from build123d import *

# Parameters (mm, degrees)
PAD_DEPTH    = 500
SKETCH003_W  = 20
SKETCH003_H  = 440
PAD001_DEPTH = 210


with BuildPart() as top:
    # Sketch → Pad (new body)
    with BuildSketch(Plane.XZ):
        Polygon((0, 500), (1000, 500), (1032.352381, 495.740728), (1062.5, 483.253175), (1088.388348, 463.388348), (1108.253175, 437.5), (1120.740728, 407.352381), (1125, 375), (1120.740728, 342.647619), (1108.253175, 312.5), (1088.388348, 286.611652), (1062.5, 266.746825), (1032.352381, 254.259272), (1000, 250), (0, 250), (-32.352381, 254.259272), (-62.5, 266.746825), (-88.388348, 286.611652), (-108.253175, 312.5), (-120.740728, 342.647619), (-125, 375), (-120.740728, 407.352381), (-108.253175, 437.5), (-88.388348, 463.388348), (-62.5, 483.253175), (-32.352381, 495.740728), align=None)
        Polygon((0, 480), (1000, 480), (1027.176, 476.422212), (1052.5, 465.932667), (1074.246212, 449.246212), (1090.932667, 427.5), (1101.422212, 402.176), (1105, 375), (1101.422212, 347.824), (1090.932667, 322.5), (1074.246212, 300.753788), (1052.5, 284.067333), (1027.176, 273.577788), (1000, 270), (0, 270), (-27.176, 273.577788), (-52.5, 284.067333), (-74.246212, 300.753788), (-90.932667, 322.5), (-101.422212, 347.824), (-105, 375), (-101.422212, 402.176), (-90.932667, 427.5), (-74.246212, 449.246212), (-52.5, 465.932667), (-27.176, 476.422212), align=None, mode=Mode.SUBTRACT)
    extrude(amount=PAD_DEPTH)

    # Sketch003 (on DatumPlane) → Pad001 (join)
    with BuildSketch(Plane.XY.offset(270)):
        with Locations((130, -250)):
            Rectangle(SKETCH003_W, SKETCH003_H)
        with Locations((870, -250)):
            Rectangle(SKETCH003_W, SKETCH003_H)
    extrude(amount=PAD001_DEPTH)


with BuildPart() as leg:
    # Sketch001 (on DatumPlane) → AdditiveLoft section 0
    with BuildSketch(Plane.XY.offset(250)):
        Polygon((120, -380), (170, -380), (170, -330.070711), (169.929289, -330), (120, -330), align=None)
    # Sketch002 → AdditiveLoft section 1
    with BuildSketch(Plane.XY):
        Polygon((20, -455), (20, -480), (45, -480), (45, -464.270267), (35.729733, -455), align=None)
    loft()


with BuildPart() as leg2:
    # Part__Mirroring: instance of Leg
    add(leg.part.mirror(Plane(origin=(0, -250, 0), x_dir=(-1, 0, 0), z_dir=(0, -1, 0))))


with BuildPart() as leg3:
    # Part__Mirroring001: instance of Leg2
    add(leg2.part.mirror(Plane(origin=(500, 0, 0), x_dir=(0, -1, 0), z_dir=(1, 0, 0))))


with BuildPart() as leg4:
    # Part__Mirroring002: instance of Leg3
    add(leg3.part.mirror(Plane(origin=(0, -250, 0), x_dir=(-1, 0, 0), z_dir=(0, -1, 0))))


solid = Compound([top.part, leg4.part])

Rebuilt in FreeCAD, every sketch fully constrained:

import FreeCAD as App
import Part
import Sketcher
from FreeCAD import Vector
Q = App.Units.Quantity

doc = App.newDocument("Part")
body = doc.addObject("PartDesign::Body", "Body")

# Sketch on XZ plane
sketch1 = doc.addObject("Sketcher::SketchObject", "Sketch")
body.addObject(sketch1)
sketch1.AttachmentSupport = (doc.XZ_Plane, [""])
sketch1.MapMode = "FlatFace"
sketch1.addGeometry(Part.LineSegment(Vector(1000, 500, 0), Vector(0, 500, 0)), False)
sketch1.addGeometry(Part.LineSegment(Vector(0, 500, 0), Vector(-32, 496, 0)), False)
sketch1.addGeometry(Part.LineSegment(Vector(-32, 496, 0), Vector(-62, 483, 0)), False)
sketch1.addGeometry(Part.LineSegment(Vector(-62, 483, 0), Vector(-88, 463, 0)), False)
sketch1.addGeometry(Part.LineSegment(Vector(-88, 463, 0), Vector(-108, 438, 0)), False)
sketch1.addGeometry(Part.LineSegment(Vector(-108, 438, 0), Vector(-121, 407, 0)), False)
sketch1.addGeometry(Part.LineSegment(Vector(-121, 407, 0), Vector(-125, 375, 0)), False)
sketch1.addGeometry(Part.LineSegment(Vector(-125, 375, 0), Vector(-121, 343, 0)), False)
sketch1.addGeometry(Part.LineSegment(Vector(-121, 343, 0), Vector(-108, 312, 0)), False)
sketch1.addGeometry(Part.LineSegment(Vector(-108, 312, 0), Vector(-88, 287, 0)), False)
sketch1.addGeometry(Part.LineSegment(Vector(-88, 287, 0), Vector(-62, 267, 0)), False)
sketch1.addGeometry(Part.LineSegment(Vector(-62, 267, 0), Vector(-32, 254, 0)), False)
sketch1.addGeometry(Part.LineSegment(Vector(-32, 254, 0), Vector(0, 250, 0)), False)
sketch1.addGeometry(Part.LineSegment(Vector(0, 250, 0), Vector(1000, 250, 0)), False)
sketch1.addGeometry(Part.LineSegment(Vector(1000, 250, 0), Vector(1032, 254, 0)), False)
sketch1.addGeometry(Part.LineSegment(Vector(1032, 254, 0), Vector(1062, 267, 0)), False)
sketch1.addGeometry(Part.LineSegment(Vector(1062, 267, 0), Vector(1088, 287, 0)), False)
sketch1.addGeometry(Part.LineSegment(Vector(1088, 287, 0), Vector(1108, 312, 0)), False)
sketch1.addGeometry(Part.LineSegment(Vector(1108, 312, 0), Vector(1121, 343, 0)), False)
sketch1.addGeometry(Part.LineSegment(Vector(1121, 343, 0), Vector(1125, 375, 0)), False)
sketch1.addGeometry(Part.LineSegment(Vector(1125, 375, 0), Vector(1121, 407, 0)), False)
sketch1.addGeometry(Part.LineSegment(Vector(1121, 407, 0), Vector(1108, 438, 0)), False)
sketch1.addGeometry(Part.LineSegment(Vector(1108, 438, 0), Vector(1088, 463, 0)), False)
sketch1.addGeometry(Part.LineSegment(Vector(1088, 463, 0), Vector(1062, 483, 0)), False)
sketch1.addGeometry(Part.LineSegment(Vector(1062, 483, 0), Vector(1032, 496, 0)), False)
sketch1.addGeometry(Part.LineSegment(Vector(1032, 496, 0), Vector(1000, 500, 0)), False)
sketch1.addGeometry(Part.LineSegment(Vector(0, 480, 0), Vector(1000, 480, 0)), False)
sketch1.addGeometry(Part.LineSegment(Vector(1000, 480, 0), Vector(1027, 476, 0)), False)
sketch1.addGeometry(Part.LineSegment(Vector(1027, 476, 0), Vector(1052, 466, 0)), False)
sketch1.addGeometry(Part.LineSegment(Vector(1052, 466, 0), Vector(1074, 449, 0)), False)
sketch1.addGeometry(Part.LineSegment(Vector(1074, 449, 0), Vector(1091, 428, 0)), False)
sketch1.addGeometry(Part.LineSegment(Vector(1091, 428, 0), Vector(1101, 402, 0)), False)
sketch1.addGeometry(Part.LineSegment(Vector(1101, 402, 0), Vector(1105, 375, 0)), False)
sketch1.addGeometry(Part.LineSegment(Vector(1105, 375, 0), Vector(1101, 348, 0)), False)
sketch1.addGeometry(Part.LineSegment(Vector(1101, 348, 0), Vector(1091, 322, 0)), False)
sketch1.addGeometry(Part.LineSegment(Vector(1091, 322, 0), Vector(1074, 301, 0)), False)
sketch1.addGeometry(Part.LineSegment(Vector(1074, 301, 0), Vector(1052, 284, 0)), False)
sketch1.addGeometry(Part.LineSegment(Vector(1052, 284, 0), Vector(1027, 274, 0)), False)
sketch1.addGeometry(Part.LineSegment(Vector(1027, 274, 0), Vector(1000, 270, 0)), False)
sketch1.addGeometry(Part.LineSegment(Vector(1000, 270, 0), Vector(0, 270, 0)), False)
sketch1.addGeometry(Part.LineSegment(Vector(0, 270, 0), Vector(-27, 274, 0)), False)
sketch1.addGeometry(Part.LineSegment(Vector(-27, 274, 0), Vector(-52, 284, 0)), False)
sketch1.addGeometry(Part.LineSegment(Vector(-52, 284, 0), Vector(-74, 301, 0)), False)
sketch1.addGeometry(Part.LineSegment(Vector(-74, 301, 0), Vector(-91, 322, 0)), False)
sketch1.addGeometry(Part.LineSegment(Vector(-91, 322, 0), Vector(-101, 348, 0)), False)
sketch1.addGeometry(Part.LineSegment(Vector(-101, 348, 0), Vector(-105, 375, 0)), False)
sketch1.addGeometry(Part.LineSegment(Vector(-105, 375, 0), Vector(-101, 402, 0)), False)
sketch1.addGeometry(Part.LineSegment(Vector(-101, 402, 0), Vector(-91, 428, 0)), False)
sketch1.addGeometry(Part.LineSegment(Vector(-91, 428, 0), Vector(-74, 449, 0)), False)
sketch1.addGeometry(Part.LineSegment(Vector(-74, 449, 0), Vector(-52, 466, 0)), False)
sketch1.addGeometry(Part.LineSegment(Vector(-52, 466, 0), Vector(-27, 476, 0)), False)
sketch1.addGeometry(Part.LineSegment(Vector(-27, 476, 0), Vector(0, 480, 0)), False)
sketch1.addConstraint(Sketcher.Constraint("Coincident", 0, 2, 1, 1))
sketch1.addConstraint(Sketcher.Constraint("Coincident", 1, 2, 2, 1))
sketch1.addConstraint(Sketcher.Constraint("Coincident", 2, 2, 3, 1))
sketch1.addConstraint(Sketcher.Constraint("Coincident", 3, 2, 4, 1))
sketch1.addConstraint(Sketcher.Constraint("Coincident", 4, 2, 5, 1))
sketch1.addConstraint(Sketcher.Constraint("Coincident", 5, 2, 6, 1))
sketch1.addConstraint(Sketcher.Constraint("Coincident", 6, 2, 7, 1))
sketch1.addConstraint(Sketcher.Constraint("Coincident", 7, 2, 8, 1))
sketch1.addConstraint(Sketcher.Constraint("Coincident", 8, 2, 9, 1))
sketch1.addConstraint(Sketcher.Constraint("Coincident", 9, 2, 10, 1))
sketch1.addConstraint(Sketcher.Constraint("Coincident", 10, 2, 11, 1))
sketch1.addConstraint(Sketcher.Constraint("Coincident", 11, 2, 12, 1))
sketch1.addConstraint(Sketcher.Constraint("Coincident", 12, 2, 13, 1))
sketch1.addConstraint(Sketcher.Constraint("Coincident", 13, 2, 14, 1))
sketch1.addConstraint(Sketcher.Constraint("Coincident", 14, 2, 15, 1))
sketch1.addConstraint(Sketcher.Constraint("Coincident", 15, 2, 16, 1))
sketch1.addConstraint(Sketcher.Constraint("Coincident", 16, 2, 17, 1))
sketch1.addConstraint(Sketcher.Constraint("Coincident", 17, 2, 18, 1))
sketch1.addConstraint(Sketcher.Constraint("Coincident", 18, 2, 19, 1))
sketch1.addConstraint(Sketcher.Constraint("Coincident", 19, 2, 20, 1))
sketch1.addConstraint(Sketcher.Constraint("Coincident", 20, 2, 21, 1))
sketch1.addConstraint(Sketcher.Constraint("Coincident", 21, 2, 22, 1))
sketch1.addConstraint(Sketcher.Constraint("Coincident", 22, 2, 23, 1))
sketch1.addConstraint(Sketcher.Constraint("Coincident", 23, 2, 24, 1))
sketch1.addConstraint(Sketcher.Constraint("Coincident", 24, 2, 25, 1))
sketch1.addConstraint(Sketcher.Constraint("Coincident", 25, 2, 0, 1))
sketch1.addConstraint(Sketcher.Constraint("Coincident", 26, 2, 27, 1))
sketch1.addConstraint(Sketcher.Constraint("Coincident", 27, 2, 28, 1))
sketch1.addConstraint(Sketcher.Constraint("Coincident", 28, 2, 29, 1))
sketch1.addConstraint(Sketcher.Constraint("Coincident", 29, 2, 30, 1))
sketch1.addConstraint(Sketcher.Constraint("Coincident", 30, 2, 31, 1))
sketch1.addConstraint(Sketcher.Constraint("Coincident", 31, 2, 32, 1))
sketch1.addConstraint(Sketcher.Constraint("Coincident", 32, 2, 33, 1))
sketch1.addConstraint(Sketcher.Constraint("Coincident", 33, 2, 34, 1))
sketch1.addConstraint(Sketcher.Constraint("Coincident", 34, 2, 35, 1))
sketch1.addConstraint(Sketcher.Constraint("Coincident", 35, 2, 36, 1))
sketch1.addConstraint(Sketcher.Constraint("Coincident", 36, 2, 37, 1))
sketch1.addConstraint(Sketcher.Constraint("Coincident", 37, 2, 38, 1))
sketch1.addConstraint(Sketcher.Constraint("Coincident", 38, 2, 39, 1))
sketch1.addConstraint(Sketcher.Constraint("Coincident", 39, 2, 40, 1))
sketch1.addConstraint(Sketcher.Constraint("Coincident", 40, 2, 41, 1))
sketch1.addConstraint(Sketcher.Constraint("Coincident", 41, 2, 42, 1))
sketch1.addConstraint(Sketcher.Constraint("Coincident", 42, 2, 43, 1))
sketch1.addConstraint(Sketcher.Constraint("Coincident", 43, 2, 44, 1))
sketch1.addConstraint(Sketcher.Constraint("Coincident", 44, 2, 45, 1))
sketch1.addConstraint(Sketcher.Constraint("Coincident", 45, 2, 46, 1))
sketch1.addConstraint(Sketcher.Constraint("Coincident", 46, 2, 47, 1))
sketch1.addConstraint(Sketcher.Constraint("Coincident", 47, 2, 48, 1))
sketch1.addConstraint(Sketcher.Constraint("Coincident", 48, 2, 49, 1))
sketch1.addConstraint(Sketcher.Constraint("Coincident", 49, 2, 50, 1))
sketch1.addConstraint(Sketcher.Constraint("Coincident", 50, 2, 51, 1))
sketch1.addConstraint(Sketcher.Constraint("Coincident", 51, 2, 26, 1))
sketch1.addConstraint(Sketcher.Constraint("Horizontal", 0))
sketch1.addConstraint(Sketcher.Constraint("Horizontal", 13))
sketch1.addConstraint(Sketcher.Constraint("Horizontal", 26))
sketch1.addConstraint(Sketcher.Constraint("Horizontal", 39))
sketch1.addConstraint(Sketcher.Constraint("PointOnObject", 0, 2, -2))
sketch1.addConstraint(Sketcher.Constraint("PointOnObject", 12, 2, -2))
sketch1.addConstraint(Sketcher.Constraint("PointOnObject", 39, 2, -2))
sketch1.addConstraint(Sketcher.Constraint("PointOnObject", 51, 2, -2))
sketch1.addConstraint(Sketcher.Constraint("Perpendicular", 1, 7))
sketch1.addConstraint(Sketcher.Constraint("Perpendicular", 2, 8))
sketch1.addConstraint(Sketcher.Constraint("Perpendicular", 3, 9))
sketch1.addConstraint(Sketcher.Constraint("Perpendicular", 4, 10))
sketch1.addConstraint(Sketcher.Constraint("Perpendicular", 5, 11))
sketch1.addConstraint(Sketcher.Constraint("Perpendicular", 6, 12))
sketch1.addConstraint(Sketcher.Constraint("Perpendicular", 7, 14))
sketch1.addConstraint(Sketcher.Constraint("Perpendicular", 8, 15))
sketch1.addConstraint(Sketcher.Constraint("Perpendicular", 9, 16))
sketch1.addConstraint(Sketcher.Constraint("Perpendicular", 10, 17))
sketch1.addConstraint(Sketcher.Constraint("Perpendicular", 11, 18))
sketch1.addConstraint(Sketcher.Constraint("Perpendicular", 12, 19))
sketch1.addConstraint(Sketcher.Constraint("Perpendicular", 14, 20))
sketch1.addConstraint(Sketcher.Constraint("Perpendicular", 15, 21))
sketch1.addConstraint(Sketcher.Constraint("Perpendicular", 16, 22))
sketch1.addConstraint(Sketcher.Constraint("Perpendicular", 17, 23))
sketch1.addConstraint(Sketcher.Constraint("Perpendicular", 18, 24))
sketch1.addConstraint(Sketcher.Constraint("Perpendicular", 19, 25))
sketch1.addConstraint(Sketcher.Constraint("Parallel", 25, 27))
sketch1.addConstraint(Sketcher.Constraint("Parallel", 24, 28))
sketch1.addConstraint(Sketcher.Constraint("Parallel", 23, 29))
sketch1.addConstraint(Sketcher.Constraint("Parallel", 22, 30))
sketch1.addConstraint(Sketcher.Constraint("Parallel", 21, 31))
sketch1.addConstraint(Sketcher.Constraint("Parallel", 20, 32))
sketch1.addConstraint(Sketcher.Constraint("Perpendicular", 27, 33))
sketch1.addConstraint(Sketcher.Constraint("Perpendicular", 28, 34))
sketch1.addConstraint(Sketcher.Constraint("Perpendicular", 29, 35))
sketch1.addConstraint(Sketcher.Constraint("Perpendicular", 30, 36))
sketch1.addConstraint(Sketcher.Constraint("Perpendicular", 31, 37))
sketch1.addConstraint(Sketcher.Constraint("Perpendicular", 32, 38))
sketch1.addConstraint(Sketcher.Constraint("Perpendicular", 33, 40))
sketch1.addConstraint(Sketcher.Constraint("Perpendicular", 34, 41))
sketch1.addConstraint(Sketcher.Constraint("Perpendicular", 35, 42))
sketch1.addConstraint(Sketcher.Constraint("Perpendicular", 36, 43))
sketch1.addConstraint(Sketcher.Constraint("Perpendicular", 37, 44))
sketch1.addConstraint(Sketcher.Constraint("Perpendicular", 38, 45))
sketch1.addConstraint(Sketcher.Constraint("Perpendicular", 40, 46))
sketch1.addConstraint(Sketcher.Constraint("Perpendicular", 41, 47))
sketch1.addConstraint(Sketcher.Constraint("Perpendicular", 42, 48))
sketch1.addConstraint(Sketcher.Constraint("Perpendicular", 43, 49))
sketch1.addConstraint(Sketcher.Constraint("Perpendicular", 44, 50))
sketch1.addConstraint(Sketcher.Constraint("Perpendicular", 45, 51))
sketch1.addConstraint(Sketcher.Constraint("Horizontal", 11, 2, 14, 2))
sketch1.addConstraint(Sketcher.Constraint("Horizontal", 10, 2, 15, 2))
sketch1.addConstraint(Sketcher.Constraint("Horizontal", 9, 2, 16, 2))
sketch1.addConstraint(Sketcher.Constraint("Horizontal", 8, 2, 17, 2))
sketch1.addConstraint(Sketcher.Constraint("Horizontal", 7, 2, 18, 2))
sketch1.addConstraint(Sketcher.Constraint("Horizontal", 6, 2, 19, 2))
sketch1.addConstraint(Sketcher.Constraint("Horizontal", 5, 2, 20, 2))
sketch1.addConstraint(Sketcher.Constraint("Horizontal", 4, 2, 21, 2))
sketch1.addConstraint(Sketcher.Constraint("Horizontal", 3, 2, 22, 2))
sketch1.addConstraint(Sketcher.Constraint("Horizontal", 2, 2, 23, 2))
sketch1.addConstraint(Sketcher.Constraint("Horizontal", 1, 2, 24, 2))
sketch1.addConstraint(Sketcher.Constraint("Horizontal", 19, 2, 32, 2))
sketch1.addConstraint(Sketcher.Constraint("Horizontal", 37, 2, 40, 2))
sketch1.addConstraint(Sketcher.Constraint("Horizontal", 36, 2, 41, 2))
sketch1.addConstraint(Sketcher.Constraint("Horizontal", 35, 2, 42, 2))
sketch1.addConstraint(Sketcher.Constraint("Horizontal", 34, 2, 43, 2))
sketch1.addConstraint(Sketcher.Constraint("Horizontal", 33, 2, 44, 2))
sketch1.addConstraint(Sketcher.Constraint("Horizontal", 32, 2, 45, 2))
sketch1.addConstraint(Sketcher.Constraint("Horizontal", 31, 2, 46, 2))
sketch1.addConstraint(Sketcher.Constraint("Horizontal", 30, 2, 47, 2))
sketch1.addConstraint(Sketcher.Constraint("Horizontal", 29, 2, 48, 2))
sketch1.addConstraint(Sketcher.Constraint("Horizontal", 28, 2, 49, 2))
sketch1.addConstraint(Sketcher.Constraint("Horizontal", 27, 2, 50, 2))
sketch1.addConstraint(Sketcher.Constraint("Vertical", 5, 2, 7, 2))
sketch1.addConstraint(Sketcher.Constraint("Vertical", 4, 2, 8, 2))
sketch1.addConstraint(Sketcher.Constraint("Vertical", 3, 2, 9, 2))
sketch1.addConstraint(Sketcher.Constraint("Vertical", 2, 2, 10, 2))
sketch1.addConstraint(Sketcher.Constraint("Vertical", 1, 2, 11, 2))
sketch1.addConstraint(Sketcher.Constraint("Vertical", 18, 2, 20, 2))
sketch1.addConstraint(Sketcher.Constraint("Vertical", 17, 2, 21, 2))
sketch1.addConstraint(Sketcher.Constraint("Vertical", 16, 2, 22, 2))
sketch1.addConstraint(Sketcher.Constraint("Vertical", 25, 2, 26, 2))
sketch1.addConstraint(Sketcher.Constraint("Vertical", 31, 2, 33, 2))
sketch1.addConstraint(Sketcher.Constraint("Vertical", 30, 2, 34, 2))
sketch1.addConstraint(Sketcher.Constraint("Vertical", 29, 2, 35, 2))
sketch1.addConstraint(Sketcher.Constraint("Vertical", 28, 2, 36, 2))
sketch1.addConstraint(Sketcher.Constraint("Vertical", 27, 2, 37, 2))
sketch1.addConstraint(Sketcher.Constraint("Equal", 1, 2))
sketch1.addConstraint(Sketcher.Constraint("Equal", 2, 3))
sketch1.addConstraint(Sketcher.Constraint("Equal", 3, 4))
sketch1.addConstraint(Sketcher.Constraint("Equal", 4, 5))
sketch1.addConstraint(Sketcher.Constraint("Equal", 5, 6))
sketch1.addConstraint(Sketcher.Constraint("Equal", 27, 28))
sketch1.addConstraint(Sketcher.Constraint("Equal", 28, 29))
sketch1.addConstraint(Sketcher.Constraint("Equal", 29, 30))
sketch1.addConstraint(Sketcher.Constraint("Equal", 30, 31))
sketch1.addConstraint(Sketcher.Constraint("Equal", 31, 32))
sketch1.addConstraint(Sketcher.Constraint("DistanceX", 0, 2, 0, 1, 1000.0))
sketch1.addConstraint(Sketcher.Constraint("DistanceY", -1, 1, 0, 2, 500.0))
sketch1.addConstraint(Sketcher.Constraint("DistanceX", 6, 2, -1, 1, 125.0))
sketch1.addConstraint(Sketcher.Constraint("DistanceY", -1, 1, 26, 2, 480.0))
sketch1.addConstraint(Sketcher.Constraint("Angle", 1, Q("-172.5 deg")))
sketch1.addConstraint(Sketcher.Constraint("Angle", 2, Q("-157.499999 deg")))
sketch1.addConstraint(Sketcher.Constraint("Angle", 3, Q("-142.500002 deg")))
pad1 = doc.addObject("PartDesign::Pad", "Pad")
body.addObject(pad1)
pad1.Profile = sketch1
pad1.Length = 500

# Sketch on XY plane
sketch2 = doc.addObject("Sketcher::SketchObject", "Sketch001")
body.addObject(sketch2)
sketch2.AttachmentSupport = (doc.XY_Plane, [""])
sketch2.MapMode = "FlatFace"
sketch2.AttachmentOffset = App.Placement(Vector(0, 0, 270), App.Rotation())
sketch2.addGeometry(Part.LineSegment(Vector(120, -30, 0), Vector(120, -470, 0)), False)
sketch2.addGeometry(Part.LineSegment(Vector(120, -470, 0), Vector(140, -470, 0)), False)
sketch2.addGeometry(Part.LineSegment(Vector(140, -470, 0), Vector(140, -30, 0)), False)
sketch2.addGeometry(Part.LineSegment(Vector(140, -30, 0), Vector(120, -30, 0)), False)
sketch2.addGeometry(Part.LineSegment(Vector(860, -30, 0), Vector(860, -470, 0)), False)
sketch2.addGeometry(Part.LineSegment(Vector(860, -470, 0), Vector(880, -470, 0)), False)
sketch2.addGeometry(Part.LineSegment(Vector(880, -470, 0), Vector(880, -30, 0)), False)
sketch2.addGeometry(Part.LineSegment(Vector(880, -30, 0), Vector(860, -30, 0)), False)
sketch2.addConstraint(Sketcher.Constraint("Coincident", 0, 2, 1, 1))
sketch2.addConstraint(Sketcher.Constraint("Coincident", 1, 2, 2, 1))
sketch2.addConstraint(Sketcher.Constraint("Coincident", 2, 2, 3, 1))
sketch2.addConstraint(Sketcher.Constraint("Coincident", 3, 2, 0, 1))
sketch2.addConstraint(Sketcher.Constraint("Coincident", 4, 2, 5, 1))
sketch2.addConstraint(Sketcher.Constraint("Coincident", 5, 2, 6, 1))
sketch2.addConstraint(Sketcher.Constraint("Coincident", 6, 2, 7, 1))
sketch2.addConstraint(Sketcher.Constraint("Coincident", 7, 2, 4, 1))
sketch2.addConstraint(Sketcher.Constraint("Vertical", 0))
sketch2.addConstraint(Sketcher.Constraint("Horizontal", 1))
sketch2.addConstraint(Sketcher.Constraint("Vertical", 2))
sketch2.addConstraint(Sketcher.Constraint("Horizontal", 3))
sketch2.addConstraint(Sketcher.Constraint("Vertical", 4))
sketch2.addConstraint(Sketcher.Constraint("Horizontal", 5))
sketch2.addConstraint(Sketcher.Constraint("Vertical", 6))
sketch2.addConstraint(Sketcher.Constraint("Horizontal", 7))
sketch2.addConstraint(Sketcher.Constraint("Horizontal", 1, 2, 4, 2))
sketch2.addConstraint(Sketcher.Constraint("Horizontal", 3, 2, 6, 2))
sketch2.addConstraint(Sketcher.Constraint("Equal", 3, 5))
sketch2.addConstraint(Sketcher.Constraint("DistanceX", 1, 1, 1, 2, 20.0))
sketch2.addConstraint(Sketcher.Constraint("DistanceY", 0, 2, 0, 1, 440.0))
sketch2.addConstraint(Sketcher.Constraint("DistanceX", -1, 1, 0, 2, 120.0))
sketch2.addConstraint(Sketcher.Constraint("DistanceY", 0, 2, -1, 1, 470.0))
sketch2.addConstraint(Sketcher.Constraint("DistanceX", -1, 1, 4, 2, 860.0))
pad2 = doc.addObject("PartDesign::Pad", "Pad001")
body.addObject(pad2)
pad2.Profile = sketch2
pad2.Length = 210
body2 = doc.addObject("PartDesign::Body", "Body001")

# Sketch on XY plane
sketch3 = doc.addObject("Sketcher::SketchObject", "Sketch002")
body2.addObject(sketch3)
sketch3.AttachmentSupport = (doc.getObject("XY_Plane001"), [""])
sketch3.MapMode = "FlatFace"
sketch3.AttachmentOffset = App.Placement(Vector(0, 0, 250), App.Rotation())
sketch3.addGeometry(Part.LineSegment(Vector(120, -380, 0), Vector(170, -380, 0)), False)
sketch3.addGeometry(Part.LineSegment(Vector(170, -380, 0), Vector(170, -330.07, 0)), False)
sketch3.addGeometry(Part.LineSegment(Vector(170, -330.07, 0), Vector(169.93, -330, 0)), False)
sketch3.addGeometry(Part.LineSegment(Vector(169.93, -330, 0), Vector(120, -330, 0)), False)
sketch3.addGeometry(Part.LineSegment(Vector(120, -330, 0), Vector(120, -380, 0)), False)
sketch3.addConstraint(Sketcher.Constraint("Coincident", 0, 2, 1, 1))
sketch3.addConstraint(Sketcher.Constraint("Coincident", 1, 2, 2, 1))
sketch3.addConstraint(Sketcher.Constraint("Coincident", 2, 2, 3, 1))
sketch3.addConstraint(Sketcher.Constraint("Coincident", 3, 2, 4, 1))
sketch3.addConstraint(Sketcher.Constraint("Coincident", 4, 2, 0, 1))
sketch3.addConstraint(Sketcher.Constraint("Horizontal", 0))
sketch3.addConstraint(Sketcher.Constraint("Vertical", 1))
sketch3.addConstraint(Sketcher.Constraint("Horizontal", 3))
sketch3.addConstraint(Sketcher.Constraint("Vertical", 4))
sketch3.addConstraint(Sketcher.Constraint("Equal", 3, 1))
sketch3.addConstraint(Sketcher.Constraint("Equal", 0, 4))
sketch3.addConstraint(Sketcher.Constraint("DistanceX", 0, 1, 0, 2, 50.0))
sketch3.addConstraint(Sketcher.Constraint("DistanceX", -1, 1, 0, 2, 170.0))
sketch3.addConstraint(Sketcher.Constraint("DistanceY", 0, 2, -1, 1, 380.0))
sketch3.addConstraint(Sketcher.Constraint("Distance", 2, 0.1))

# Sketch on XY plane
sketch4 = doc.addObject("Sketcher::SketchObject", "Sketch003")
body2.addObject(sketch4)
sketch4.AttachmentSupport = (doc.getObject("XY_Plane001"), [""])
sketch4.MapMode = "FlatFace"
sketch4.addGeometry(Part.LineSegment(Vector(20, -455, 0), Vector(20, -480, 0)), False)
sketch4.addGeometry(Part.LineSegment(Vector(20, -480, 0), Vector(45, -480, 0)), False)
sketch4.addGeometry(Part.LineSegment(Vector(45, -480, 0), Vector(45, -464, 0)), False)
sketch4.addGeometry(Part.LineSegment(Vector(45, -464, 0), Vector(36, -455, 0)), False)
sketch4.addGeometry(Part.LineSegment(Vector(36, -455, 0), Vector(20, -455, 0)), False)
sketch4.addConstraint(Sketcher.Constraint("Coincident", 0, 2, 1, 1))
sketch4.addConstraint(Sketcher.Constraint("Coincident", 1, 2, 2, 1))
sketch4.addConstraint(Sketcher.Constraint("Coincident", 2, 2, 3, 1))
sketch4.addConstraint(Sketcher.Constraint("Coincident", 3, 2, 4, 1))
sketch4.addConstraint(Sketcher.Constraint("Coincident", 4, 2, 0, 1))
sketch4.addConstraint(Sketcher.Constraint("Vertical", 0))
sketch4.addConstraint(Sketcher.Constraint("Horizontal", 1))
sketch4.addConstraint(Sketcher.Constraint("Vertical", 2))
sketch4.addConstraint(Sketcher.Constraint("Horizontal", 4))
sketch4.addConstraint(Sketcher.Constraint("Equal", 1, 0))
sketch4.addConstraint(Sketcher.Constraint("Equal", 4, 2))
sketch4.addConstraint(Sketcher.Constraint("DistanceX", 1, 1, 1, 2, 25.0))
sketch4.addConstraint(Sketcher.Constraint("DistanceX", -1, 1, 0, 2, 20.0))
sketch4.addConstraint(Sketcher.Constraint("DistanceY", 0, 2, -1, 1, 480.0))
sketch4.addConstraint(Sketcher.Constraint("DistanceX", 4, 2, 4, 1, 15.729733))

additiveloft = doc.addObject("PartDesign::AdditiveLoft", "AdditiveLoft")
body2.addObject(additiveloft)
additiveloft.Profile = sketch3
additiveloft.Sections = [sketch4]
body3 = doc.addObject("PartDesign::Body", "Body002")
doc.recompute()

mirroring = doc.addObject("Part::Mirroring", "Mirroring")
mirroring.Source = body2
mirroring.Base = Vector(0, -250, 0)
mirroring.Normal = Vector(0, -1, 0)
body3.BaseFeature = mirroring
doc.recompute()
body4 = doc.addObject("PartDesign::Body", "Body003")
doc.recompute()

mirroring2 = doc.addObject("Part::Mirroring", "Mirroring001")
mirroring2.Source = body3
mirroring2.Base = Vector(500, 0, 0)
mirroring2.Normal = Vector(1, 0, 0)
body4.BaseFeature = mirroring2
doc.recompute()
body5 = doc.addObject("PartDesign::Body", "Body004")
doc.recompute()

mirroring3 = doc.addObject("Part::Mirroring", "Mirroring002")
mirroring3.Source = body4
mirroring3.Base = Vector(0, -250, 0)
mirroring3.Normal = Vector(0, -1, 0)
body5.BaseFeature = mirroring3
doc.recompute()
body2.Visibility = False
body3.Visibility = False
body4.Visibility = False
mirroring.Visibility = False
mirroring2.Visibility = False
mirroring3.Visibility = False

doc.recompute()
